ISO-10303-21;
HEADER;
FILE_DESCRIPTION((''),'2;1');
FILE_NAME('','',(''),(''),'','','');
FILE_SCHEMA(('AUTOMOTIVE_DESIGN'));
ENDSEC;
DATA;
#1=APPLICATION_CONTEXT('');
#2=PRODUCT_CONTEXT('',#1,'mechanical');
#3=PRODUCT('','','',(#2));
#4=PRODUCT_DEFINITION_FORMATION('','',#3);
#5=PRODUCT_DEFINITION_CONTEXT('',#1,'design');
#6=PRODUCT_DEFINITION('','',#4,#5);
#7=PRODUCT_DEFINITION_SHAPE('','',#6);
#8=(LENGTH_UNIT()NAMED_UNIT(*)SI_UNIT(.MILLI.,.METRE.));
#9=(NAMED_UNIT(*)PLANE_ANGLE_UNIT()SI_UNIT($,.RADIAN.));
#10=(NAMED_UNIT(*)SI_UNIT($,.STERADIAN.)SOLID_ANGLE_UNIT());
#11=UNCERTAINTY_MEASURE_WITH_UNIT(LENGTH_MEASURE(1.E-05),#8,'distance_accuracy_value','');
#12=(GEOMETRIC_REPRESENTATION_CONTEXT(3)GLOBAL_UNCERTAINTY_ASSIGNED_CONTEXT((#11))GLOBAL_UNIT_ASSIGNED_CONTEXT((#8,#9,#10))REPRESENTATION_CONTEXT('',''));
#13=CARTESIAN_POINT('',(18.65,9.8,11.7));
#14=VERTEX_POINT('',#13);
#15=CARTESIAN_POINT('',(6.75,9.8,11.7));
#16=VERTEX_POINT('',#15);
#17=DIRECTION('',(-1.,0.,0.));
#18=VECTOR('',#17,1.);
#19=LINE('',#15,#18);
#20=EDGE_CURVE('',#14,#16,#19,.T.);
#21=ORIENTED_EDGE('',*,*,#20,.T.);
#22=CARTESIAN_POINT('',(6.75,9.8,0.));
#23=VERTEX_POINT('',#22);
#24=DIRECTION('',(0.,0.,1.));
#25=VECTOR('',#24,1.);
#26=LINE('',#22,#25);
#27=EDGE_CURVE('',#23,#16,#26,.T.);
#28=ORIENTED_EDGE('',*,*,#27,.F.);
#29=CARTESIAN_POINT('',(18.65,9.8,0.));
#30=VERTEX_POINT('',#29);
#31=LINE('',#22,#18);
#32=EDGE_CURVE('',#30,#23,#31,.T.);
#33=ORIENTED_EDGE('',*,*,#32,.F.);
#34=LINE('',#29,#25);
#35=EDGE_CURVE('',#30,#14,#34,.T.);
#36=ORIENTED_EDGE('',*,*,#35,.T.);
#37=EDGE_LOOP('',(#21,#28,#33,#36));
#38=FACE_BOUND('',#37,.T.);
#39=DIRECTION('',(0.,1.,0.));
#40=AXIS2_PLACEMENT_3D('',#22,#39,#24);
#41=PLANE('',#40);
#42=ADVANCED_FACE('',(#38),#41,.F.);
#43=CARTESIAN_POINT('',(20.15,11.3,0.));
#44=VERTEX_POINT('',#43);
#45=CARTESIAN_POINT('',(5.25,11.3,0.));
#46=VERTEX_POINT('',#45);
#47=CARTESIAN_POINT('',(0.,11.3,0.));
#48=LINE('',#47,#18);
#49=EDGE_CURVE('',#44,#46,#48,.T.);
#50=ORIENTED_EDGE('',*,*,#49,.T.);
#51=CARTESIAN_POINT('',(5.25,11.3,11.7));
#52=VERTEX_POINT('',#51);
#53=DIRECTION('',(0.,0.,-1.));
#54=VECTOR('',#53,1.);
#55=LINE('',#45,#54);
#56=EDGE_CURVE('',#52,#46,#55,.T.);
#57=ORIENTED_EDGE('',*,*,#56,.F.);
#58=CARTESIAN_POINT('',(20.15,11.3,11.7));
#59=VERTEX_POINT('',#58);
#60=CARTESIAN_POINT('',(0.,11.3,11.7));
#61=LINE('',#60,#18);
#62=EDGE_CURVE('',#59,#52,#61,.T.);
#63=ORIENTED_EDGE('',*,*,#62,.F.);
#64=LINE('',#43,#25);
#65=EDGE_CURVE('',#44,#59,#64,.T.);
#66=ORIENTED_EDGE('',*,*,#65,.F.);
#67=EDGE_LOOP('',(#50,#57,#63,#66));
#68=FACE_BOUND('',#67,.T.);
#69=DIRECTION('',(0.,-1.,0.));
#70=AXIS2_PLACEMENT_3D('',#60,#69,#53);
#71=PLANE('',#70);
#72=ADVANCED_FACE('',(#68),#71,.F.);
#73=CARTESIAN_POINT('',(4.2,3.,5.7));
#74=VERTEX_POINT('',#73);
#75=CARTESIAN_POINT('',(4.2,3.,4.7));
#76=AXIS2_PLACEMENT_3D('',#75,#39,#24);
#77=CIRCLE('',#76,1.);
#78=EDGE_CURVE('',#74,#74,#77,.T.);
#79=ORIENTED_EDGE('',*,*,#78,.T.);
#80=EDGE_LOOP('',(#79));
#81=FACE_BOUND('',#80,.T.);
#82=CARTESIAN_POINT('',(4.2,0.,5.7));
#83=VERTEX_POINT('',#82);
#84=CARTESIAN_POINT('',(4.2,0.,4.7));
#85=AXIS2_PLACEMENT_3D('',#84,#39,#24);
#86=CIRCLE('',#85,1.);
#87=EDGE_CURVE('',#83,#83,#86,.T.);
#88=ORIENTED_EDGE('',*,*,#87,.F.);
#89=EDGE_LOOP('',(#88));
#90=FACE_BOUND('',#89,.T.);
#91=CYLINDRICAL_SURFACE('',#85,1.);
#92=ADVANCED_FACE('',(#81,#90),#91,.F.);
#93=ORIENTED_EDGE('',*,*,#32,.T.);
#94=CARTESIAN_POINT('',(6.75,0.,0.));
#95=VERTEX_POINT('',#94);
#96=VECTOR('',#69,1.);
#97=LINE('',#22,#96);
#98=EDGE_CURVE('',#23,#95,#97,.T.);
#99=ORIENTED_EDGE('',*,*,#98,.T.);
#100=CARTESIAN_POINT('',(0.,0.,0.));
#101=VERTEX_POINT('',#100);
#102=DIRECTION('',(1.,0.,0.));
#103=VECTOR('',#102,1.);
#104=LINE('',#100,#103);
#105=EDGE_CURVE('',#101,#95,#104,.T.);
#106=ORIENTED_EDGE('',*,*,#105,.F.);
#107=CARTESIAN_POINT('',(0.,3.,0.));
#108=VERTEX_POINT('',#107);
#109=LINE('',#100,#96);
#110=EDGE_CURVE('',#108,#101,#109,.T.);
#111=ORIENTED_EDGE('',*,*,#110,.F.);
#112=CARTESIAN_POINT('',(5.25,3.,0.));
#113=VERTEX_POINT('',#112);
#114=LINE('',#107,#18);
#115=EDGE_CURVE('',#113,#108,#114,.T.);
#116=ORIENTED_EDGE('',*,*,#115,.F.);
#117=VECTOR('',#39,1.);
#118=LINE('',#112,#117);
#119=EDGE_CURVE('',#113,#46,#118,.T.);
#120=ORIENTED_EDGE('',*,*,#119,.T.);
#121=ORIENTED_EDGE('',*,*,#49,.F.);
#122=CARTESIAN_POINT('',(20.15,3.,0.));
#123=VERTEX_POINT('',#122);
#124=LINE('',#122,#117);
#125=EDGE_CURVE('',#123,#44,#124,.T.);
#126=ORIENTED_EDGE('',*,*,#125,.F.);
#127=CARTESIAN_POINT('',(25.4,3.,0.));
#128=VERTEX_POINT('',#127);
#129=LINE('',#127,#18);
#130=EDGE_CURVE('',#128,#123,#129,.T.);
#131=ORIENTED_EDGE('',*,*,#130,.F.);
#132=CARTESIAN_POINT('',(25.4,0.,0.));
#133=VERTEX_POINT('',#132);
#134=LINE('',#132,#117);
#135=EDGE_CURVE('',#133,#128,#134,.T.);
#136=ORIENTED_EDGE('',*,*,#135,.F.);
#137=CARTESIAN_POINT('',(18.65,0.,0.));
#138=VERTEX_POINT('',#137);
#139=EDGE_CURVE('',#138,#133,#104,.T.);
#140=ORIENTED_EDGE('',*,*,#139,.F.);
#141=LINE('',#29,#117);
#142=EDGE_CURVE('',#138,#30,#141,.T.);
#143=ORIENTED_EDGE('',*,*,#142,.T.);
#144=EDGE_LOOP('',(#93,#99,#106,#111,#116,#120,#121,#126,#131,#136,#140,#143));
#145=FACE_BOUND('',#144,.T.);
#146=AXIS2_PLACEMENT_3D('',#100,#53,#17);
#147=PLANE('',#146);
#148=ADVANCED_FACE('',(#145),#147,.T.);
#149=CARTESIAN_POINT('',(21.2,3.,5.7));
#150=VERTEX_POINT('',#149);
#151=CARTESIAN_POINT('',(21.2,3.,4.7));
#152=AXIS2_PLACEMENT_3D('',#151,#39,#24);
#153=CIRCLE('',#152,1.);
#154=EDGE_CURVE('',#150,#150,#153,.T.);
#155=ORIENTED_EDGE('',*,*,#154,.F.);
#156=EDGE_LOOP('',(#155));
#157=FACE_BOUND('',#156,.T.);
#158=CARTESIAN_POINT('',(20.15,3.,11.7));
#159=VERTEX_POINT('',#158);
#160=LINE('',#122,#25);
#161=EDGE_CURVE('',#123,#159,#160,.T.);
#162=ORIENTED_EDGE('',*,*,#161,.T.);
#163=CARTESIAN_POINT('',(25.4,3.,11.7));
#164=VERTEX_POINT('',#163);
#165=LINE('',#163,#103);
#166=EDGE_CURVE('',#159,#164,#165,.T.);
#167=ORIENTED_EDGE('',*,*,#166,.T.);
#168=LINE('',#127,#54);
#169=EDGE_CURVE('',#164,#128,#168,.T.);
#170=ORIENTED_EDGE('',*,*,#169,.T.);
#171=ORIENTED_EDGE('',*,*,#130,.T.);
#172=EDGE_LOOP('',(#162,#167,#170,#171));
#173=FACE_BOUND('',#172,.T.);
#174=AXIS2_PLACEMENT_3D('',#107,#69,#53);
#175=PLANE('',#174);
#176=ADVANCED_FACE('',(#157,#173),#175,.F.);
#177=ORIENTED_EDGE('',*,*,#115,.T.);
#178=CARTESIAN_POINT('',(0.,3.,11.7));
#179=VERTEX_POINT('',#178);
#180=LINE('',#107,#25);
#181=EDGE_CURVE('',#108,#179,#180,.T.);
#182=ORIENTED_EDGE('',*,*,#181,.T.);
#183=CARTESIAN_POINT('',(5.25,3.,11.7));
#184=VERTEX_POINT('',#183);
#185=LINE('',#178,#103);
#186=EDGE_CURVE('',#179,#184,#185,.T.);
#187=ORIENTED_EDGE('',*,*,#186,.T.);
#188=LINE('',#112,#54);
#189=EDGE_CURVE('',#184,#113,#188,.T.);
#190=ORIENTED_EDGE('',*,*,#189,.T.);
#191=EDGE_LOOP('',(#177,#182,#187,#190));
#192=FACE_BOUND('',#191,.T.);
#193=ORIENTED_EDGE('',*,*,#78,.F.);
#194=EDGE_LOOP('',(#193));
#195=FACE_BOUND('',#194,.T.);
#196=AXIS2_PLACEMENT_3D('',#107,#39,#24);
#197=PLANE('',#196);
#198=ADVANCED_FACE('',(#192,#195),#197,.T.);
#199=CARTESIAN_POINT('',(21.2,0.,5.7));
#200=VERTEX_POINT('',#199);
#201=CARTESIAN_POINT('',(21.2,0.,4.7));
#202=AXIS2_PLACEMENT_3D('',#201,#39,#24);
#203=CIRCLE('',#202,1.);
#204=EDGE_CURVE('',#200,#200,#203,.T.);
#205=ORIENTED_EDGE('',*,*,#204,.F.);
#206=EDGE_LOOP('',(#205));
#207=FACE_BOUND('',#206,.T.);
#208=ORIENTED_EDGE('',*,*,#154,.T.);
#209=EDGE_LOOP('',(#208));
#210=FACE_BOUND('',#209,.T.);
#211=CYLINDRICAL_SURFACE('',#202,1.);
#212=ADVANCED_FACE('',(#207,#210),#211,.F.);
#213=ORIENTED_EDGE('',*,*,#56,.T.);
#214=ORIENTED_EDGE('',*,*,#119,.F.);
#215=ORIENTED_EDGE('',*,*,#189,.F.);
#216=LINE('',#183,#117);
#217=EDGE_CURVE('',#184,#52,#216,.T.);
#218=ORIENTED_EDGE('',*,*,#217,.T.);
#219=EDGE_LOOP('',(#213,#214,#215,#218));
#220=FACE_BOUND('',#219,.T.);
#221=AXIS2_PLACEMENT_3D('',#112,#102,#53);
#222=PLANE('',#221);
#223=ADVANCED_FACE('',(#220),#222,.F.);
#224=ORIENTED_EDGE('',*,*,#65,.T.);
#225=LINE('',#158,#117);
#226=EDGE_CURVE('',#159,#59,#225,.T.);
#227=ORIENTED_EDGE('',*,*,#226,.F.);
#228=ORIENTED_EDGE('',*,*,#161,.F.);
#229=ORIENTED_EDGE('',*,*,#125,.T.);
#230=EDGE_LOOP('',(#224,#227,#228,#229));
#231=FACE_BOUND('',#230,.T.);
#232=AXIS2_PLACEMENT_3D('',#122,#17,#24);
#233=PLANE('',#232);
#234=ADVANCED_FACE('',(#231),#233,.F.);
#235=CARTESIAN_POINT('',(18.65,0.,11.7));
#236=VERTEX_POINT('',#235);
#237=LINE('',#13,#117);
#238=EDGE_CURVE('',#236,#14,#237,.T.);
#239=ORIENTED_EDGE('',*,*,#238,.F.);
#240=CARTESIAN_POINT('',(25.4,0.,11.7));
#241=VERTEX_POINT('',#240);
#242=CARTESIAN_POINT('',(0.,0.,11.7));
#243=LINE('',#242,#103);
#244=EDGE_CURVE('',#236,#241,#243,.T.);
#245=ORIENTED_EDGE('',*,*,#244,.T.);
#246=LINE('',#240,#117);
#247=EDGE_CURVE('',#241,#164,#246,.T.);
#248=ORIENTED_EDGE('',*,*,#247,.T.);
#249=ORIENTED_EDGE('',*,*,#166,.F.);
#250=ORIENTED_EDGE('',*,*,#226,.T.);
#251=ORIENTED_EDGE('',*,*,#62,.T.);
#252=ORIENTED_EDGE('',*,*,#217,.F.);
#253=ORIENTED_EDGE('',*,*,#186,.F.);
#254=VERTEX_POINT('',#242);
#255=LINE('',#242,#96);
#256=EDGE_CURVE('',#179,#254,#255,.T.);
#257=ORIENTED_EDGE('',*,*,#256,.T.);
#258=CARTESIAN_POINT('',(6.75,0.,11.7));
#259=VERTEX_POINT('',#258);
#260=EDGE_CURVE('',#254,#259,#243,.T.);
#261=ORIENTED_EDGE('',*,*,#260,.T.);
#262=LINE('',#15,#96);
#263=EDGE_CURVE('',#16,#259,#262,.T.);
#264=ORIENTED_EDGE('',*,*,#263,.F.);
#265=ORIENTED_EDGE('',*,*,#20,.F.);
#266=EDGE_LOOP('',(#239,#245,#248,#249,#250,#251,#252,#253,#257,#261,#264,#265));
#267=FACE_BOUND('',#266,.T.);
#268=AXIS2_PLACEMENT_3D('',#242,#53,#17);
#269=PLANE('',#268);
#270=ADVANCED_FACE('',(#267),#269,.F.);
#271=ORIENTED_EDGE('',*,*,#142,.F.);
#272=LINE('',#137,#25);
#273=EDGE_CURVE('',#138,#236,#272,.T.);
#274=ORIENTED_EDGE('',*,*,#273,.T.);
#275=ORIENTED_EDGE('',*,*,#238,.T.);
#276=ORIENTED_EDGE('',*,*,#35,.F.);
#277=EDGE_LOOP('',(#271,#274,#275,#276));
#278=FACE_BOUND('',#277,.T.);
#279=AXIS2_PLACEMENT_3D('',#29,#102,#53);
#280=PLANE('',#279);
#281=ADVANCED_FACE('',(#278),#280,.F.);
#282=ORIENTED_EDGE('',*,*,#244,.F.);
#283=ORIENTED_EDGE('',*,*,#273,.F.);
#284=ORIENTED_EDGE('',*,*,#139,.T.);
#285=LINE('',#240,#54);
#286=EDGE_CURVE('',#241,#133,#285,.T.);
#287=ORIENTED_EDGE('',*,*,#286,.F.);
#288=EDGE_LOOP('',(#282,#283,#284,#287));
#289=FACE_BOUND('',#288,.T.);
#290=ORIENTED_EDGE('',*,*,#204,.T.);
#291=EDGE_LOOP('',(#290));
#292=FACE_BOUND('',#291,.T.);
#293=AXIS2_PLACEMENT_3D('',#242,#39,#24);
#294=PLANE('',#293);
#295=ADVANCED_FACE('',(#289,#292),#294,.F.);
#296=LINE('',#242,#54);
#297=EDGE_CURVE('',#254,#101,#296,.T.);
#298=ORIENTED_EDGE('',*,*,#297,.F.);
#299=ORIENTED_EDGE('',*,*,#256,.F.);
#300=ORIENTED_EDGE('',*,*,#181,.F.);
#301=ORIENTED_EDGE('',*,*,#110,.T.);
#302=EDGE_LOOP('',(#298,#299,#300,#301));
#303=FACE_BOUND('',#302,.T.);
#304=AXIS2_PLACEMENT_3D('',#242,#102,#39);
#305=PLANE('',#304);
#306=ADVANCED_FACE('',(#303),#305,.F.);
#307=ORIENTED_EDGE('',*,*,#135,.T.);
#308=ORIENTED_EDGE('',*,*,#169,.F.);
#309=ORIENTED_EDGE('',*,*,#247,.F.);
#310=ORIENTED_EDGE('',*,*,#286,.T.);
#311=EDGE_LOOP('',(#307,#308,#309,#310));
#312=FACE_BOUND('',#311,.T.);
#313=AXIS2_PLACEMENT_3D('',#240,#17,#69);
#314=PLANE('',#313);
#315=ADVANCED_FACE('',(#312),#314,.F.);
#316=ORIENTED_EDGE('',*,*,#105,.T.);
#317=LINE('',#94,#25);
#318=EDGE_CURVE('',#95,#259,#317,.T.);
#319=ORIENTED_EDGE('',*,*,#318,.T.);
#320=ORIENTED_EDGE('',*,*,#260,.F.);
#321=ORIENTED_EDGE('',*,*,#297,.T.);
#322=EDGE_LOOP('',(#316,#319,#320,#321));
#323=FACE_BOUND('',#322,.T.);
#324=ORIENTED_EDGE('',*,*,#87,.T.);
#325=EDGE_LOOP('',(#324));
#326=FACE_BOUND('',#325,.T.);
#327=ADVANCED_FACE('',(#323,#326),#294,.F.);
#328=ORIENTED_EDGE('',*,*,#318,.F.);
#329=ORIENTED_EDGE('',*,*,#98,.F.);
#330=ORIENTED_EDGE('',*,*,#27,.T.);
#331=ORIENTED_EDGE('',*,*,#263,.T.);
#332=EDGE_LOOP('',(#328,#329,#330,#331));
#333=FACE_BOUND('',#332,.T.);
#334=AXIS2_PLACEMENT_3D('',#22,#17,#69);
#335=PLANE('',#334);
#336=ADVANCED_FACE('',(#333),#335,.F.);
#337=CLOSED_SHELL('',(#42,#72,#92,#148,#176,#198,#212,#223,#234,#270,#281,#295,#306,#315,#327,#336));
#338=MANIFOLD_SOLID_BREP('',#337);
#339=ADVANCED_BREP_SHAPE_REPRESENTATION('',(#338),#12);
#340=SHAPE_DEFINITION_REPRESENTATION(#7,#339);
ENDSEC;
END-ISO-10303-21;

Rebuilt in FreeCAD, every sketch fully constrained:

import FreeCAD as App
import Part
import Sketcher
from FreeCAD import Vector
Q = App.Units.Quantity

doc = App.newDocument("Part")
body = doc.addObject("PartDesign::Body", "Body")

sketch1 = body.newObject("Sketcher::SketchObject", "Sketch")
sketch1.AttachmentSupport = (doc.getObject("XY_Plane"), [""])
sketch1.MapMode = "FlatFace"
sketch1.addGeometry(Part.LineSegment(Vector(0, 11, 0), Vector(0, 0, 0)), False)
sketch1.addGeometry(Part.LineSegment(Vector(0, 0, 0), Vector(25, 0, 0)), False)
sketch1.addGeometry(Part.LineSegment(Vector(25, 0, 0), Vector(25, 11, 0)), False)
sketch1.addGeometry(Part.LineSegment(Vector(25, 11, 0), Vector(0, 11, 0)), False)
sketch1.addConstraint(Sketcher.Constraint("Coincident", 0, 2, 1, 1))
sketch1.addConstraint(Sketcher.Constraint("Coincident", 1, 2, 2, 1))
sketch1.addConstraint(Sketcher.Constraint("Coincident", 2, 2, 3, 1))
sketch1.addConstraint(Sketcher.Constraint("Coincident", 3, 2, 0, 1))
sketch1.addConstraint(Sketcher.Constraint("Vertical", 0))
sketch1.addConstraint(Sketcher.Constraint("Horizontal", 1))
sketch1.addConstraint(Sketcher.Constraint("Vertical", 2))
sketch1.addConstraint(Sketcher.Constraint("Horizontal", 3))
sketch1.addConstraint(Sketcher.Constraint("Coincident", 0, 2, -1, 1))
sketch1.addConstraint(Sketcher.Constraint("DistanceX", 1, 1, 1, 2, Q("25.4 mm")))
sketch1.addConstraint(Sketcher.Constraint("DistanceY", 0, 2, 0, 1, Q("11.3 mm")))
pad1 = body.newObject("PartDesign::Pad", "Pad")
pad1.Profile = sketch1
pad1.Length = 11.7

sketch2 = body.newObject("Sketcher::SketchObject", "Sketch001")
sketch2.AttachmentSupport = (doc.getObject("XZ_Plane"), [""])
sketch2.MapMode = "FlatFace"
sketch2.AttachmentOffset = App.Placement(Vector(0, 0, -11.3), App.Rotation())
sketch2.addGeometry(Part.LineSegment(Vector(0, 0, 0), Vector(0, 12, 0)), False)
sketch2.addGeometry(Part.LineSegment(Vector(0, 12, 0), Vector(5, 12, 0)), False)
sketch2.addGeometry(Part.LineSegment(Vector(5, 12, 0), Vector(5, 0, 0)), False)
sketch2.addGeometry(Part.LineSegment(Vector(5, 0, 0), Vector(0, 0, 0)), False)
sketch2.addGeometry(Part.LineSegment(Vector(20, 0, 0), Vector(20, 12, 0)), False)
sketch2.addGeometry(Part.LineSegment(Vector(20, 12, 0), Vector(25, 12, 0)), False)
sketch2.addGeometry(Part.LineSegment(Vector(25, 12, 0), Vector(25, 0, 0)), False)
sketch2.addGeometry(Part.LineSegment(Vector(25, 0, 0), Vector(20, 0, 0)), False)
sketch2.addConstraint(Sketcher.Constraint("Coincident", 0, 2, 1, 1))
sketch2.addConstraint(Sketcher.Constraint("Coincident", 1, 2, 2, 1))
sketch2.addConstraint(Sketcher.Constraint("Coincident", 2, 2, 3, 1))
sketch2.addConstraint(Sketcher.Constraint("Coincident", 3, 2, 0, 1))
sketch2.addConstraint(Sketcher.Constraint("Coincident", 4, 2, 5, 1))
sketch2.addConstraint(Sketcher.Constraint("Coincident", 5, 2, 6, 1))
sketch2.addConstraint(Sketcher.Constraint("Coincident", 6, 2, 7, 1))
sketch2.addConstraint(Sketcher.Constraint("Coincident", 7, 2, 4, 1))
sketch2.addConstraint(Sketcher.Constraint("Vertical", 0))
sketch2.addConstraint(Sketcher.Constraint("Horizontal", 1))
sketch2.addConstraint(Sketcher.Constraint("Vertical", 2))
sketch2.addConstraint(Sketcher.Constraint("Horizontal", 3))
sketch2.addConstraint(Sketcher.Constraint("Vertical", 4))
sketch2.addConstraint(Sketcher.Constraint("Horizontal", 5))
sketch2.addConstraint(Sketcher.Constraint("Vertical", 6))
sketch2.addConstraint(Sketcher.Constraint("Horizontal", 7))
sketch2.addConstraint(Sketcher.Constraint("Coincident", 3, 2, -1, 1))
sketch2.addConstraint(Sketcher.Constraint("PointOnObject", 6, 2, -1))
sketch2.addConstraint(Sketcher.Constraint("Horizontal", 1, 2, 4, 2))
sketch2.addConstraint(Sketcher.Constraint("Equal", 3, 5))
sketch2.addConstraint(Sketcher.Constraint("DistanceY", 0, 1, 0, 2, Q("11.7 mm")))
sketch2.addConstraint(Sketcher.Constraint("DistanceX", 1, 1, 1, 2, Q("5.25 mm")))
sketch2.addConstraint(Sketcher.Constraint("DistanceX", -1, 1, 5, 2, Q("25.4 mm")))
pocket1 = body.newObject("PartDesign::Pocket", "Pocket")
pocket1.Profile = sketch2
pocket1.Length = 8.3
pocket1.Reversed = True

sketch3 = body.newObject("Sketcher::SketchObject", "Sketch002")
sketch3.AttachmentSupport = (doc.getObject("XY_Plane"), [""])
sketch3.MapMode = "FlatFace"
sketch3.AttachmentOffset = App.Placement(Vector(0, 0, 11.7), App.Rotation())
sketch3.addGeometry(Part.LineSegment(Vector(7, 10, 0), Vector(7, 0, 0)), False)
sketch3.addGeometry(Part.LineSegment(Vector(7, 0, 0), Vector(19, 0, 0)), False)
sketch3.addGeometry(Part.LineSegment(Vector(19, 0, 0), Vector(19, 10, 0)), False)
sketch3.addGeometry(Part.LineSegment(Vector(19, 10, 0), Vector(7, 10, 0)), False)
sketch3.addConstraint(Sketcher.Constraint("Coincident", 0, 2, 1, 1))
sketch3.addConstraint(Sketcher.Constraint("Coincident", 1, 2, 2, 1))
sketch3.addConstraint(Sketcher.Constraint("Coincident", 2, 2, 3, 1))
sketch3.addConstraint(Sketcher.Constraint("Coincident", 3, 2, 0, 1))
sketch3.addConstraint(Sketcher.Constraint("Vertical", 0))
sketch3.addConstraint(Sketcher.Constraint("Horizontal", 1))
sketch3.addConstraint(Sketcher.Constraint("Vertical", 2))
sketch3.addConstraint(Sketcher.Constraint("Horizontal", 3))
sketch3.addConstraint(Sketcher.Constraint("PointOnObject", 0, 2, -1))
sketch3.addConstraint(Sketcher.Constraint("DistanceX", 1, 1, 1, 2, Q("11.9 mm")))
sketch3.addConstraint(Sketcher.Constraint("DistanceY", 0, 2, 0, 1, Q("9.8 mm")))
sketch3.addConstraint(Sketcher.Constraint("DistanceX", -1, 1, 0, 2, Q("6.75 mm")))
pocket2 = body.newObject("PartDesign::Pocket", "Pocket001")
pocket2.Profile = sketch3
pocket2.Type = "ThroughAll"

sketch4 = body.newObject("Sketcher::SketchObject", "Sketch003")
sketch4.AttachmentSupport = (doc.getObject("XZ_Plane"), [""])
sketch4.MapMode = "FlatFace"
sketch4.AttachmentOffset = App.Placement(Vector(0, 0, -3), App.Rotation())
sketch4.addGeometry(Part.Circle(Vector(21.2, 4.7, 0), Vector(0, 0, 1), 1), False)
sketch4.addGeometry(Part.Circle(Vector(4.2, 4.7, 0), Vector(0, 0, 1), 1), False)
sketch4.addConstraint(Sketcher.Constraint("Equal", 0, 1))
sketch4.addConstraint(Sketcher.Constraint("Horizontal", 0, 3, 1, 3))
sketch4.addConstraint(Sketcher.Constraint("Diameter", 0, Q("2 mm")))
sketch4.addConstraint(Sketcher.Constraint("DistanceX", 1, 3, 0, 3, Q("17 mm")))
sketch4.addConstraint(Sketcher.Constraint("DistanceX", -1, 1, 0, 3, Q("21.2 mm")))
sketch4.addConstraint(Sketcher.Constraint("DistanceY", -1, 1, 0, 3, Q("4.7 mm")))
pocket3 = body.newObject("PartDesign::Pocket", "Pocket002")
pocket3.Profile = sketch4
pocket3.Type = "ThroughAll"
pocket3.Reversed = True

doc.recompute()
